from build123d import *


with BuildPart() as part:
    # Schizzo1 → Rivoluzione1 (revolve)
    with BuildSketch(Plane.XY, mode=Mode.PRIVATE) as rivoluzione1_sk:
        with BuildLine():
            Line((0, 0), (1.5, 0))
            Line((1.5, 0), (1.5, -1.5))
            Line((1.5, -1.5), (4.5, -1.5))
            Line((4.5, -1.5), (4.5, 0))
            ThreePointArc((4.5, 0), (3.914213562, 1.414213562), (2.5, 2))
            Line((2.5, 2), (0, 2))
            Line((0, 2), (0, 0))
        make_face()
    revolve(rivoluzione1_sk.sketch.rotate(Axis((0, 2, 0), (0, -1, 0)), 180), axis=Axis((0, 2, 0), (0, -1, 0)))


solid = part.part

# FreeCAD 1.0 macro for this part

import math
import FreeCAD as App
import Part
import Sketcher

V = App.Vector

doc = App.newDocument("Part")
body = doc.addObject("PartDesign::Body", "Body")

sketch1 = doc.addObject("Sketcher::SketchObject", "Sketch")
body.addObject(sketch1)
sketch1.AttachmentSupport = (doc.XY_Plane, [""])
sketch1.MapMode = "FlatFace"
sketch1.addGeometry(Part.LineSegment(V(0, 0, 0), V(1.5, 0, 0)), False)
sketch1.addGeometry(Part.LineSegment(V(1.5, 0, 0), V(1.5, -1.5, 0)), False)
sketch1.addGeometry(Part.LineSegment(V(1.5, -1.5, 0), V(4.5, -1.5, 0)), False)
sketch1.addGeometry(Part.LineSegment(V(4.5, -1.5, 0), V(4.5, 0, 0)), False)
sketch1.addGeometry(Part.ArcOfCircle(Part.Circle(V(2.5, 0, 0), V(0, 0, 1), 2), math.radians(0), math.radians(90)), False)
sketch1.addGeometry(Part.LineSegment(V(2.5, 2, 0), V(0, 2, 0)), False)
sketch1.addGeometry(Part.LineSegment(V(0, 2, 0), V(0, 0, 0)), False)
sketch1.addConstraint(Sketcher.Constraint("Coincident", 0, 2, 1, 1))
sketch1.addConstraint(Sketcher.Constraint("Coincident", 1, 2, 2, 1))
sketch1.addConstraint(Sketcher.Constraint("Coincident", 2, 2, 3, 1))
sketch1.addConstraint(Sketcher.Constraint("Tangent", 3, 2, 4, 1))
sketch1.addConstraint(Sketcher.Constraint("Tangent", 4, 2, 5, 1))
sketch1.addConstraint(Sketcher.Constraint("Coincident", 5, 2, 6, 1))
sketch1.addConstraint(Sketcher.Constraint("Coincident", 6, 2, 0, 1))
sketch1.addConstraint(Sketcher.Constraint("Horizontal", 0))
sketch1.addConstraint(Sketcher.Constraint("Vertical", 1))
sketch1.addConstraint(Sketcher.Constraint("Horizontal", 2))
sketch1.addConstraint(Sketcher.Constraint("Vertical", 3))
sketch1.addConstraint(Sketcher.Constraint("Horizontal", 5))
sketch1.addConstraint(Sketcher.Constraint("Vertical", 6))
sketch1.addConstraint(Sketcher.Constraint("Coincident", 6, 2, -1, 1))
sketch1.addConstraint(Sketcher.Constraint("PointOnObject", 4, 3, -1))
sketch1.addConstraint(Sketcher.Constraint("Equal", 0, 1))
sketch1.addConstraint(Sketcher.Constraint("Radius", 4, 2.0))
sketch1.addConstraint(Sketcher.Constraint("DistanceX", 2, 1, 2, 2, 3.0))
sketch1.addConstraint(Sketcher.Constraint("DistanceX", 0, 1, 0, 2, 1.5))
revolution = doc.addObject("PartDesign::Revolution", "Revolution")
body.addObject(revolution)
revolution.Profile = sketch1
revolution.ReferenceAxis = (sketch1, ["V_Axis"])
revolution.Angle = 360

doc.recompute()
